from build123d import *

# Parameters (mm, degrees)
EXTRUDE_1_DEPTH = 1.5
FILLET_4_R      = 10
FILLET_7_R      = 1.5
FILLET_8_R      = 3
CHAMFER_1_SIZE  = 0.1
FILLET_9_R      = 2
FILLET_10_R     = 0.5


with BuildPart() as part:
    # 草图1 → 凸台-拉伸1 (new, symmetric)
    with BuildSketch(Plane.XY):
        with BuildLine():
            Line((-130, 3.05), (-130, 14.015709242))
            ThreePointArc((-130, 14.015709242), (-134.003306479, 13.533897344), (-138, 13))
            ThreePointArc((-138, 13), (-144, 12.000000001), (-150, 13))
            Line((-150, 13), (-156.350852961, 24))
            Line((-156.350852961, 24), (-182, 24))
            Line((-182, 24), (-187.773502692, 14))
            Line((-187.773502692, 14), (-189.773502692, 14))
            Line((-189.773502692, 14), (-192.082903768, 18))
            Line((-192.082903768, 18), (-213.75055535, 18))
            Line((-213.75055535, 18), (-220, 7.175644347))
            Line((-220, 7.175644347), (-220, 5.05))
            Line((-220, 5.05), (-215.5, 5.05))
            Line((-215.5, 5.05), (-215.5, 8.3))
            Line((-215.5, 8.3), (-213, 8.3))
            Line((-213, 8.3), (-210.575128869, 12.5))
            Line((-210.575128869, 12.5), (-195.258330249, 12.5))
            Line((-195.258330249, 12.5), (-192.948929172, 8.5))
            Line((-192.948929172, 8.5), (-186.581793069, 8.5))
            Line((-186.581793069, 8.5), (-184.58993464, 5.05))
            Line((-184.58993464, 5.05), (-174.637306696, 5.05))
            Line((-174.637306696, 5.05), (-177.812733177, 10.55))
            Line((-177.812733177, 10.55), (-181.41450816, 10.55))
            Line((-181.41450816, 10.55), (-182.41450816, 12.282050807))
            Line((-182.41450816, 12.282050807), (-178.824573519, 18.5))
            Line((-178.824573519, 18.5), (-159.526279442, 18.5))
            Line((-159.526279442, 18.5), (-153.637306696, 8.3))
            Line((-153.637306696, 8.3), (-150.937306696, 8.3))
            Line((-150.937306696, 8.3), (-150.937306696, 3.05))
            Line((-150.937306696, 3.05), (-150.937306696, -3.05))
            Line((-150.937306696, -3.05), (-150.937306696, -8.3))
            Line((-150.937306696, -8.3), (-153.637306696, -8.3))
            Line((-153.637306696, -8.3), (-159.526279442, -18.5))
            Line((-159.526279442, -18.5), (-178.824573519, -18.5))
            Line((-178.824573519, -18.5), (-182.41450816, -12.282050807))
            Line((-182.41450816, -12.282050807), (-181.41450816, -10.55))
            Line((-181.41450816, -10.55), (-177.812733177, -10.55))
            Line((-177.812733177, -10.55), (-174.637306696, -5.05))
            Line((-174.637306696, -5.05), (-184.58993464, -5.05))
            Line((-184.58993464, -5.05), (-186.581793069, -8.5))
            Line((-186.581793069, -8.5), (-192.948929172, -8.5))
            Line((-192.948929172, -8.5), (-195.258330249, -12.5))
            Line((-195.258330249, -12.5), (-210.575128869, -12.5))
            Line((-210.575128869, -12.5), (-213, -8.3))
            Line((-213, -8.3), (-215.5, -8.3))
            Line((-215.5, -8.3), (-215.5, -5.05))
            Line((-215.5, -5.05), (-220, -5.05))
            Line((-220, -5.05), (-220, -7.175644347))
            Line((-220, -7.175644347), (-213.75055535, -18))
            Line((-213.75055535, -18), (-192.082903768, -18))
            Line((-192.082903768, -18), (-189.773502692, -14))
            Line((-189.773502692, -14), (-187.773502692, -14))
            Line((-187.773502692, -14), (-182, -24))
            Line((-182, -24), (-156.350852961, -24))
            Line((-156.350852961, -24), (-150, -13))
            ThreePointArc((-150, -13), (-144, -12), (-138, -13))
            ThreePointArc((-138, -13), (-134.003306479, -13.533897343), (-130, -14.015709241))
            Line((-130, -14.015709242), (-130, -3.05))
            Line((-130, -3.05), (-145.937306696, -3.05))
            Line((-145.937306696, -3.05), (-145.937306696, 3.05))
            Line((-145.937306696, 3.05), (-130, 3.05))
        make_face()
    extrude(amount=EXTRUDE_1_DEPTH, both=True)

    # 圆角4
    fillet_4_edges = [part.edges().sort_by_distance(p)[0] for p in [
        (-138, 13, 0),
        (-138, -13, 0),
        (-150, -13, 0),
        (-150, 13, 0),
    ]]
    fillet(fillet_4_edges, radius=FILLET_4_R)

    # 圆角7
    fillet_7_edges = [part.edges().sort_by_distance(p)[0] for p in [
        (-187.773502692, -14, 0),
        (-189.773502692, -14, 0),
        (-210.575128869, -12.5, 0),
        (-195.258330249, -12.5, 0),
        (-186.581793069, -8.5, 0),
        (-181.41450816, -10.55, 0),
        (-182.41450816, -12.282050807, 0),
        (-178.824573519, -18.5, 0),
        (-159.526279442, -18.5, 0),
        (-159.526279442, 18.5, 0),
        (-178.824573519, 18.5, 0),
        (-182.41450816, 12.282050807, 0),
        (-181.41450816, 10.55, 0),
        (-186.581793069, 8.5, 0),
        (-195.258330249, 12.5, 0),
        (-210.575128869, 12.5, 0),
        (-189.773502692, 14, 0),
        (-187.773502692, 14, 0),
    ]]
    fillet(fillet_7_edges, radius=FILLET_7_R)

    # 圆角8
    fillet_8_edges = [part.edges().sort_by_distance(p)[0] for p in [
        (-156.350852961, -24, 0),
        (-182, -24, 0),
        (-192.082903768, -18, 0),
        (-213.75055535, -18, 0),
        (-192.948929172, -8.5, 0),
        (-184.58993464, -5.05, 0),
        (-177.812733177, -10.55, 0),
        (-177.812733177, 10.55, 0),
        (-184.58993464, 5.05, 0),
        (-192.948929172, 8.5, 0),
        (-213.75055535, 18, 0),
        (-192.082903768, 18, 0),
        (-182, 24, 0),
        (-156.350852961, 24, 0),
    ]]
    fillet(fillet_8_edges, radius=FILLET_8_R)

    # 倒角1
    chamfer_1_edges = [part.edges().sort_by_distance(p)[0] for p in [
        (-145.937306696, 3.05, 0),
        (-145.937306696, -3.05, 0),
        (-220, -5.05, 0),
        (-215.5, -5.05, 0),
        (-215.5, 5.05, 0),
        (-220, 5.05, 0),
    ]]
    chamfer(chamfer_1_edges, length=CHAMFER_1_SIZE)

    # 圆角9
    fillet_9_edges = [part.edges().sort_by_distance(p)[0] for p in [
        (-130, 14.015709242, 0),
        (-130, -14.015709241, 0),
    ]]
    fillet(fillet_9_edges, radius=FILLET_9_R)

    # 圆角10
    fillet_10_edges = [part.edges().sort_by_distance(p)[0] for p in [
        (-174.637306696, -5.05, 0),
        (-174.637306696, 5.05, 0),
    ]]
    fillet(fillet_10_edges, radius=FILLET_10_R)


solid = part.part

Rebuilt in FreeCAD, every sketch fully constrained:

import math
import FreeCAD as App
import Part
import Sketcher
from FreeCAD import Vector
Q = App.Units.Quantity


def edges_at(feature, points):
    """Names of the edges that pass closest to the given points."""
    edges = feature.Shape.Edges
    near = lambda p: min(range(len(edges)), key=lambda i: edges[i].distToShape(Part.Vertex(*p))[0])
    return sorted({f"Edge{near(p) + 1}" for p in points})

doc = App.newDocument("Part")
body = doc.addObject("PartDesign::Body", "Body")

sketch1 = body.newObject("Sketcher::SketchObject", "Sketch")
sketch1.AttachmentSupport = (doc.getObject("XY_Plane"), [""])
sketch1.MapMode = "FlatFace"
sketch1.addGeometry(Part.LineSegment(Vector(-130, 3.05, 0), Vector(-130, 14.015709, 0)), False)
sketch1.addGeometry(Part.ArcOfCircle(Part.Circle(Vector(-95, -293.666664, 0), Vector(0, 0, 1), 309.666664), math.radians(96.489709), math.radians(97.981826)), False)
sketch1.addGeometry(Part.ArcOfCircle(Part.Circle(Vector(-144, 30.5, 0), Vector(0, 0, 1), 18.5), math.radians(-108.924644), math.radians(-71.075356)), False)
sketch1.addGeometry(Part.LineSegment(Vector(-150, 13, 0), Vector(-156.350853, 24, 0)), False)
sketch1.addGeometry(Part.LineSegment(Vector(-156.350853, 24, 0), Vector(-182, 24, 0)), False)
sketch1.addGeometry(Part.LineSegment(Vector(-182, 24, 0), Vector(-187.773503, 14, 0)), False)
sketch1.addGeometry(Part.LineSegment(Vector(-187.773503, 14, 0), Vector(-189.773503, 14, 0)), False)
sketch1.addGeometry(Part.LineSegment(Vector(-189.773503, 14, 0), Vector(-192.082904, 18, 0)), False)
sketch1.addGeometry(Part.LineSegment(Vector(-192.082904, 18, 0), Vector(-213.750555, 18, 0)), False)
sketch1.addGeometry(Part.LineSegment(Vector(-213.750555, 18, 0), Vector(-220, 7.175644, 0)), False)
sketch1.addGeometry(Part.LineSegment(Vector(-220, 7.175644, 0), Vector(-220, 5.05, 0)), False)
sketch1.addGeometry(Part.LineSegment(Vector(-220, 5.05, 0), Vector(-215.5, 5.05, 0)), False)
sketch1.addGeometry(Part.LineSegment(Vector(-215.5, 5.05, 0), Vector(-215.5, 8.3, 0)), False)
sketch1.addGeometry(Part.LineSegment(Vector(-215.5, 8.3, 0), Vector(-213, 8.3, 0)), False)
sketch1.addGeometry(Part.LineSegment(Vector(-213, 8.3, 0), Vector(-210.575129, 12.5, 0)), False)
sketch1.addGeometry(Part.LineSegment(Vector(-210.575129, 12.5, 0), Vector(-195.25833, 12.5, 0)), False)
sketch1.addGeometry(Part.LineSegment(Vector(-195.25833, 12.5, 0), Vector(-192.948929, 8.5, 0)), False)
sketch1.addGeometry(Part.LineSegment(Vector(-192.948929, 8.5, 0), Vector(-186.581793, 8.5, 0)), False)
sketch1.addGeometry(Part.LineSegment(Vector(-186.581793, 8.5, 0), Vector(-184.589935, 5.05, 0)), False)
sketch1.addGeometry(Part.LineSegment(Vector(-184.589935, 5.05, 0), Vector(-174.637307, 5.05, 0)), False)
sketch1.addGeometry(Part.LineSegment(Vector(-174.637307, 5.05, 0), Vector(-177.812733, 10.55, 0)), False)
sketch1.addGeometry(Part.LineSegment(Vector(-177.812733, 10.55, 0), Vector(-181.414508, 10.55, 0)), False)
sketch1.addGeometry(Part.LineSegment(Vector(-181.414508, 10.55, 0), Vector(-182.414508, 12.282051, 0)), False)
sketch1.addGeometry(Part.LineSegment(Vector(-182.414508, 12.282051, 0), Vector(-178.824574, 18.5, 0)), False)
sketch1.addGeometry(Part.LineSegment(Vector(-178.824574, 18.5, 0), Vector(-159.526279, 18.5, 0)), False)
sketch1.addGeometry(Part.LineSegment(Vector(-159.526279, 18.5, 0), Vector(-153.637307, 8.3, 0)), False)
sketch1.addGeometry(Part.LineSegment(Vector(-153.637307, 8.3, 0), Vector(-150.937307, 8.3, 0)), False)
sketch1.addGeometry(Part.LineSegment(Vector(-150.937307, 8.3, 0), Vector(-150.937307, -8.3, 0)), False)
sketch1.addGeometry(Part.LineSegment(Vector(-150.937307, -8.3, 0), Vector(-153.637307, -8.3, 0)), False)
sketch1.addGeometry(Part.LineSegment(Vector(-153.637307, -8.3, 0), Vector(-159.526279, -18.5, 0)), False)
sketch1.addGeometry(Part.LineSegment(Vector(-159.526279, -18.5, 0), Vector(-178.824574, -18.5, 0)), False)
sketch1.addGeometry(Part.LineSegment(Vector(-178.824574, -18.5, 0), Vector(-182.414508, -12.282051, 0)), False)
sketch1.addGeometry(Part.LineSegment(Vector(-182.414508, -12.282051, 0), Vector(-181.414508, -10.55, 0)), False)
sketch1.addGeometry(Part.LineSegment(Vector(-181.414508, -10.55, 0), Vector(-177.812733, -10.55, 0)), False)
sketch1.addGeometry(Part.LineSegment(Vector(-177.812733, -10.55, 0), Vector(-174.637307, -5.05, 0)), False)
sketch1.addGeometry(Part.LineSegment(Vector(-174.637307, -5.05, 0), Vector(-184.589935, -5.05, 0)), False)
sketch1.addGeometry(Part.LineSegment(Vector(-184.589935, -5.05, 0), Vector(-186.581793, -8.5, 0)), False)
sketch1.addGeometry(Part.LineSegment(Vector(-186.581793, -8.5, 0), Vector(-192.948929, -8.5, 0)), False)
sketch1.addGeometry(Part.LineSegment(Vector(-192.948929, -8.5, 0), Vector(-195.25833, -12.5, 0)), False)
sketch1.addGeometry(Part.LineSegment(Vector(-195.25833, -12.5, 0), Vector(-210.575129, -12.5, 0)), False)
sketch1.addGeometry(Part.LineSegment(Vector(-210.575129, -12.5, 0), Vector(-213, -8.3, 0)), False)
sketch1.addGeometry(Part.LineSegment(Vector(-213, -8.3, 0), Vector(-215.5, -8.3, 0)), False)
sketch1.addGeometry(Part.LineSegment(Vector(-215.5, -8.3, 0), Vector(-215.5, -5.05, 0)), False)
sketch1.addGeometry(Part.LineSegment(Vector(-215.5, -5.05, 0), Vector(-220, -5.05, 0)), False)
sketch1.addGeometry(Part.LineSegment(Vector(-220, -5.05, 0), Vector(-220, -7.175644, 0)), False)
sketch1.addGeometry(Part.LineSegment(Vector(-220, -7.175644, 0), Vector(-213.750555, -18, 0)), False)
sketch1.addGeometry(Part.LineSegment(Vector(-213.750555, -18, 0), Vector(-192.082904, -18, 0)), False)
sketch1.addGeometry(Part.LineSegment(Vector(-192.082904, -18, 0), Vector(-189.773503, -14, 0)), False)
sketch1.addGeometry(Part.LineSegment(Vector(-189.773503, -14, 0), Vector(-187.773503, -14, 0)), False)
sketch1.addGeometry(Part.LineSegment(Vector(-187.773503, -14, 0), Vector(-182, -24, 0)), False)
sketch1.addGeometry(Part.LineSegment(Vector(-182, -24, 0), Vector(-156.350853, -24, 0)), False)
sketch1.addGeometry(Part.LineSegment(Vector(-156.350853, -24, 0), Vector(-150, -13, 0)), False)
sketch1.addGeometry(Part.ArcOfCircle(Part.Circle(Vector(-144, -30.5, 0), Vector(0, 0, 1), 18.5), math.radians(71.075356), math.radians(108.924644)), False)
sketch1.addGeometry(Part.ArcOfCircle(Part.Circle(Vector(-95, 293.66667, 0), Vector(0, 0, 1), 309.66667), math.radians(-97.981826), math.radians(-96.489709)), False)
sketch1.addGeometry(Part.LineSegment(Vector(-130, -14.015709, 0), Vector(-130, -3.05, 0)), False)
sketch1.addGeometry(Part.LineSegment(Vector(-130, -3.05, 0), Vector(-145.937307, -3.05, 0)), False)
sketch1.addGeometry(Part.LineSegment(Vector(-145.937307, -3.05, 0), Vector(-145.937307, 3.05, 0)), False)
sketch1.addGeometry(Part.LineSegment(Vector(-145.937307, 3.05, 0), Vector(-130, 3.05, 0)), False)
sketch1.addConstraint(Sketcher.Constraint("Coincident", 0, 2, 1, 1))
sketch1.addConstraint(Sketcher.Constraint("Coincident", 1, 2, 2, 2))
sketch1.addConstraint(Sketcher.Constraint("Coincident", 2, 1, 3, 1))
sketch1.addConstraint(Sketcher.Constraint("Coincident", 3, 2, 4, 1))
sketch1.addConstraint(Sketcher.Constraint("Coincident", 4, 2, 5, 1))
sketch1.addConstraint(Sketcher.Constraint("Coincident", 5, 2, 6, 1))
sketch1.addConstraint(Sketcher.Constraint("Coincident", 6, 2, 7, 1))
sketch1.addConstraint(Sketcher.Constraint("Coincident", 7, 2, 8, 1))
sketch1.addConstraint(Sketcher.Constraint("Coincident", 8, 2, 9, 1))
sketch1.addConstraint(Sketcher.Constraint("Coincident", 9, 2, 10, 1))
sketch1.addConstraint(Sketcher.Constraint("Coincident", 10, 2, 11, 1))
sketch1.addConstraint(Sketcher.Constraint("Coincident", 11, 2, 12, 1))
sketch1.addConstraint(Sketcher.Constraint("Coincident", 12, 2, 13, 1))
sketch1.addConstraint(Sketcher.Constraint("Coincident", 13, 2, 14, 1))
sketch1.addConstraint(Sketcher.Constraint("Coincident", 14, 2, 15, 1))
sketch1.addConstraint(Sketcher.Constraint("Coincident", 15, 2, 16, 1))
sketch1.addConstraint(Sketcher.Constraint("Coincident", 16, 2, 17, 1))
sketch1.addConstraint(Sketcher.Constraint("Coincident", 17, 2, 18, 1))
sketch1.addConstraint(Sketcher.Constraint("Coincident", 18, 2, 19, 1))
sketch1.addConstraint(Sketcher.Constraint("Coincident", 19, 2, 20, 1))
sketch1.addConstraint(Sketcher.Constraint("Coincident", 20, 2, 21, 1))
sketch1.addConstraint(Sketcher.Constraint("Coincident", 21, 2, 22, 1))
sketch1.addConstraint(Sketcher.Constraint("Coincident", 22, 2, 23, 1))
sketch1.addConstraint(Sketcher.Constraint("Coincident", 23, 2, 24, 1))
sketch1.addConstraint(Sketcher.Constraint("Coincident", 24, 2, 25, 1))
sketch1.addConstraint(Sketcher.Constraint("Coincident", 25, 2, 26, 1))
sketch1.addConstraint(Sketcher.Constraint("Coincident", 26, 2, 27, 1))
sketch1.addConstraint(Sketcher.Constraint("Coincident", 27, 2, 28, 1))
sketch1.addConstraint(Sketcher.Constraint("Coincident", 28, 2, 29, 1))
sketch1.addConstraint(Sketcher.Constraint("Coincident", 29, 2, 30, 1))
sketch1.addConstraint(Sketcher.Constraint("Coincident", 30, 2, 31, 1))
sketch1.addConstraint(Sketcher.Constraint("Coincident", 31, 2, 32, 1))
sketch1.addConstraint(Sketcher.Constraint("Coincident", 32, 2, 33, 1))
sketch1.addConstraint(Sketcher.Constraint("Coincident", 33, 2, 34, 1))
sketch1.addConstraint(Sketcher.Constraint("Coincident", 34, 2, 35, 1))
sketch1.addConstraint(Sketcher.Constraint("Coincident", 35, 2, 36, 1))
sketch1.addConstraint(Sketcher.Constraint("Coincident", 36, 2, 37, 1))
sketch1.addConstraint(Sketcher.Constraint("Coincident", 37, 2, 38, 1))
sketch1.addConstraint(Sketcher.Constraint("Coincident", 38, 2, 39, 1))
sketch1.addConstraint(Sketcher.Constraint("Coincident", 39, 2, 40, 1))
sketch1.addConstraint(Sketcher.Constraint("Coincident", 40, 2, 41, 1))
sketch1.addConstraint(Sketcher.Constraint("Coincident", 41, 2, 42, 1))
sketch1.addConstraint(Sketcher.Constraint("Coincident", 42, 2, 43, 1))
sketch1.addConstraint(Sketcher.Constraint("Coincident", 43, 2, 44, 1))
sketch1.addConstraint(Sketcher.Constraint("Coincident", 44, 2, 45, 1))
sketch1.addConstraint(Sketcher.Constraint("Coincident", 45, 2, 46, 1))
sketch1.addConstraint(Sketcher.Constraint("Coincident", 46, 2, 47, 1))
sketch1.addConstraint(Sketcher.Constraint("Coincident", 47, 2, 48, 1))
sketch1.addConstraint(Sketcher.Constraint("Coincident", 48, 2, 49, 1))
sketch1.addConstraint(Sketcher.Constraint("Coincident", 49, 2, 50, 1))
sketch1.addConstraint(Sketcher.Constraint("Coincident", 50, 2, 51, 1))
sketch1.addConstraint(Sketcher.Constraint("Coincident", 51, 2, 52, 2))
sketch1.addConstraint(Sketcher.Constraint("Coincident", 52, 1, 53, 1))
sketch1.addConstraint(Sketcher.Constraint("Coincident", 53, 2, 54, 1))
sketch1.addConstraint(Sketcher.Constraint("Coincident", 54, 2, 55, 1))
sketch1.addConstraint(Sketcher.Constraint("Coincident", 55, 2, 56, 1))
sketch1.addConstraint(Sketcher.Constraint("Coincident", 56, 2, 57, 1))
sketch1.addConstraint(Sketcher.Constraint("Coincident", 57, 2, 0, 1))
sketch1.addConstraint(Sketcher.Constraint("Vertical", 0))
sketch1.addConstraint(Sketcher.Constraint("Horizontal", 4))
sketch1.addConstraint(Sketcher.Constraint("Horizontal", 6))
sketch1.addConstraint(Sketcher.Constraint("Horizontal", 8))
sketch1.addConstraint(Sketcher.Constraint("Vertical", 10))
sketch1.addConstraint(Sketcher.Constraint("Horizontal", 11))
sketch1.addConstraint(Sketcher.Constraint("Vertical", 12))
sketch1.addConstraint(Sketcher.Constraint("Horizontal", 13))
sketch1.addConstraint(Sketcher.Constraint("Horizontal", 15))
sketch1.addConstraint(Sketcher.Constraint("Horizontal", 17))
sketch1.addConstraint(Sketcher.Constraint("Horizontal", 19))
sketch1.addConstraint(Sketcher.Constraint("Horizontal", 21))
sketch1.addConstraint(Sketcher.Constraint("Horizontal", 24))
sketch1.addConstraint(Sketcher.Constraint("Horizontal", 26))
sketch1.addConstraint(Sketcher.Constraint("Vertical", 27))
sketch1.addConstraint(Sketcher.Constraint("Horizontal", 28))
sketch1.addConstraint(Sketcher.Constraint("Horizontal", 30))
sketch1.addConstraint(Sketcher.Constraint("Horizontal", 33))
sketch1.addConstraint(Sketcher.Constraint("Horizontal", 35))
sketch1.addConstraint(Sketcher.Constraint("Horizontal", 37))
sketch1.addConstraint(Sketcher.Constraint("Horizontal", 39))
sketch1.addConstraint(Sketcher.Constraint("Horizontal", 41))
sketch1.addConstraint(Sketcher.Constraint("Vertical", 42))
sketch1.addConstraint(Sketcher.Constraint("Horizontal", 43))
sketch1.addConstraint(Sketcher.Constraint("Vertical", 44))
sketch1.addConstraint(Sketcher.Constraint("Horizontal", 46))
sketch1.addConstraint(Sketcher.Constraint("Horizontal", 48))
sketch1.addConstraint(Sketcher.Constraint("Horizontal", 50))
sketch1.addConstraint(Sketcher.Constraint("Vertical", 54))
sketch1.addConstraint(Sketcher.Constraint("Horizontal", 55))
sketch1.addConstraint(Sketcher.Constraint("Vertical", 56))
sketch1.addConstraint(Sketcher.Constraint("Horizontal", 57))
sketch1.addConstraint(Sketcher.Constraint("Equal", 2, 52))
sketch1.addConstraint(Sketcher.Constraint("Symmetric", 2, 3, 52, 3, -1))
sketch1.addConstraint(Sketcher.Constraint("Symmetric", 1, 3, 53, 3, -1))
sketch1.addConstraint(Sketcher.Constraint("Symmetric", 25, 2, 28, 2, -1))
sketch1.addConstraint(Sketcher.Constraint("Symmetric", 24, 2, 29, 2, -1))
sketch1.addConstraint(Sketcher.Constraint("Symmetric", 22, 2, 31, 2, -1))
sketch1.addConstraint(Sketcher.Constraint("Symmetric", 21, 2, 32, 2, -1))
sketch1.addConstraint(Sketcher.Constraint("Symmetric", 19, 2, 34, 2, -1))
sketch1.addConstraint(Sketcher.Constraint("Symmetric", 17, 2, 36, 2, -1))
sketch1.addConstraint(Sketcher.Constraint("Symmetric", 15, 2, 38, 2, -1))
sketch1.addConstraint(Sketcher.Constraint("Symmetric", 13, 2, 40, 2, -1))
sketch1.addConstraint(Sketcher.Constraint("Symmetric", 11, 2, 42, 2, -1))
sketch1.addConstraint(Sketcher.Constraint("Symmetric", 9, 2, 44, 2, -1))
sketch1.addConstraint(Sketcher.Constraint("Symmetric", 8, 2, 45, 2, -1))
sketch1.addConstraint(Sketcher.Constraint("Symmetric", 6, 2, 47, 2, -1))
sketch1.addConstraint(Sketcher.Constraint("Symmetric", 4, 2, 49, 2, -1))
sketch1.addConstraint(Sketcher.Constraint("Symmetric", 0, 2, 53, 2, -1))
sketch1.addConstraint(Sketcher.Constraint("Parallel", 3, 7))
sketch1.addConstraint(Sketcher.Constraint("Parallel", 5, 9))
sketch1.addConstraint(Sketcher.Constraint("Parallel", 9, 14))
sketch1.addConstraint(Sketcher.Constraint("Parallel", 7, 16))
sketch1.addConstraint(Sketcher.Constraint("Parallel", 16, 18))
sketch1.addConstraint(Sketcher.Constraint("Parallel", 18, 20))
sketch1.addConstraint(Sketcher.Constraint("Parallel", 20, 22))
sketch1.addConstraint(Sketcher.Constraint("Parallel", 14, 23))
sketch1.addConstraint(Sketcher.Constraint("Parallel", 22, 25))
sketch1.addConstraint(Sketcher.Constraint("Parallel", 23, 29))
sketch1.addConstraint(Sketcher.Constraint("Parallel", 25, 31))
sketch1.addConstraint(Sketcher.Constraint("Parallel", 32, 34))
sketch1.addConstraint(Sketcher.Constraint("Parallel", 34, 36))
sketch1.addConstraint(Sketcher.Constraint("Parallel", 36, 38))
sketch1.addConstraint(Sketcher.Constraint("Parallel", 31, 40))
sketch1.addConstraint(Sketcher.Constraint("Parallel", 38, 47))
sketch1.addConstraint(Sketcher.Constraint("Parallel", 45, 49))
sketch1.addConstraint(Sketcher.Constraint("Parallel", 47, 51))
sketch1.addConstraint(Sketcher.Constraint("Horizontal", 1, 2, 2, 1))
sketch1.addConstraint(Sketcher.Constraint("Horizontal", 11, 2, 18, 2))
sketch1.addConstraint(Sketcher.Constraint("Horizontal", 13, 2, 25, 2))
sketch1.addConstraint(Sketcher.Constraint("Horizontal", 51, 2, 52, 1))
sketch1.addConstraint(Sketcher.Constraint("Equal", 0, 54))
sketch1.addConstraint(Sketcher.Constraint("Equal", 7, 16))
sketch1.addConstraint(Sketcher.Constraint("Radius", 2, Q("18.5 mm")))
sketch1.addConstraint(Sketcher.Constraint("DistanceX", 6, 2, 6, 1, Q("2 mm")))
sketch1.addConstraint(Sketcher.Constraint("Angle", 3, Q("120 deg")))
sketch1.addConstraint(Sketcher.Constraint("Distance", 22, Q("2 mm")))
sketch1.addConstraint(Sketcher.Constraint("DistanceX", 11, 1, 11, 2, Q("4.5 mm")))
sketch1.addConstraint(Sketcher.Constraint("DistanceX", 13, 1, 13, 2, Q("2.5 mm")))
sketch1.addConstraint(Sketcher.Constraint("DistanceX", 26, 1, 26, 2, Q("2.7 mm")))
sketch1.addConstraint(Sketcher.Constraint("DistanceY", 27, 2, 27, 1, Q("16.6 mm")))
sketch1.addConstraint(Sketcher.Constraint("DistanceY", 56, 1, 56, 2, Q("6.1 mm")))
sketch1.addConstraint(Sketcher.Constraint("DistanceX", 1, 3, -1, 1, Q("95 mm")))
sketch1.addConstraint(Sketcher.Constraint("DistanceX", 2, 3, -1, 1, Q("144 mm")))
sketch1.addConstraint(Sketcher.Constraint("DistanceX", 0, 2, -1, 1, Q("130 mm")))
sketch1.addConstraint(Sketcher.Constraint("DistanceY", -1, 1, 1, 2, Q("13 mm")))
sketch1.addConstraint(Sketcher.Constraint("DistanceX", 2, 1, -1, 1, Q("150 mm")))
sketch1.addConstraint(Sketcher.Constraint("DistanceY", -1, 1, 3, 2, Q("24 mm")))
sketch1.addConstraint(Sketcher.Constraint("DistanceX", 4, 2, -1, 1, Q("182 mm")))
sketch1.addConstraint(Sketcher.Constraint("DistanceY", -1, 1, 5, 2, Q("14 mm")))
sketch1.addConstraint(Sketcher.Constraint("DistanceY", -1, 1, 7, 2, Q("18 mm")))
sketch1.addConstraint(Sketcher.Constraint("DistanceX", 9, 2, -1, 1, Q("220 mm")))
sketch1.addConstraint(Sketcher.Constraint("DistanceY", 12, 1, 12, 2, Q("3.25 mm")))
sketch1.addConstraint(Sketcher.Constraint("DistanceY", -1, 1, 14, 2, Q("12.5 mm")))
sketch1.addConstraint(Sketcher.Constraint("DistanceY", -1, 1, 23, 2, Q("18.5 mm")))
sketch1.addConstraint(Sketcher.Constraint("DistanceY", -1, 1, 20, 2, Q("10.55 mm")))
sketch1.addConstraint(Sketcher.Constraint("Radius", 53, Q("309.66667 mm")))
sketch1.addConstraint(Sketcher.Constraint("DistanceX", 15, 1, 15, 2, Q("15.316799 mm")))
sketch1.addConstraint(Sketcher.Constraint("DistanceX", 8, 2, 8, 1, Q("21.667652 mm")))
sketch1.addConstraint(Sketcher.Constraint("DistanceX", 17, 1, 17, 2, Q("6.367136 mm")))
sketch1.addConstraint(Sketcher.Constraint("DistanceX", 19, 1, 19, 2, Q("9.952628 mm")))
sketch1.addConstraint(Sketcher.Constraint("DistanceX", 21, 2, 21, 1, Q("3.601775 mm")))
sketch1.addConstraint(Sketcher.Constraint("DistanceX", 24, 1, 24, 2, Q("19.298294 mm")))
sketch1.addConstraint(Sketcher.Constraint("DistanceX", 55, 2, 55, 1, Q("15.937307 mm")))
pad1 = body.newObject("PartDesign::Pad", "Pad")
pad1.Profile = sketch1
pad1.Length = 3
pad1.Midplane = True
doc.recompute()

fillet = body.newObject("PartDesign::Fillet", "Fillet")
fillet.Base = (pad1, edges_at(pad1, [
    (-138, 13, 0),
    (-138, -13, 0),
    (-150, -13, 0),
    (-150, 13, 0),
]))
fillet.Radius = 10
doc.recompute()

fillet2 = body.newObject("PartDesign::Fillet", "Fillet001")
fillet2.Base = (fillet, edges_at(fillet, [
    (-187.774, -14, 0),
    (-189.774, -14, 0),
    (-210.575, -12.5, 0),
    (-195.258, -12.5, 0),
    (-186.582, -8.5, 0),
    (-181.415, -10.55, 0),
    (-182.415, -12.282, 0),
    (-178.825, -18.5, 0),
    (-159.526, -18.5, 0),
    (-159.526, 18.5, 0),
    (-178.825, 18.5, 0),
    (-182.415, 12.282, 0),
    (-181.415, 10.55, 0),
    (-186.582, 8.5, 0),
    (-195.258, 12.5, 0),
    (-210.575, 12.5, 0),
    (-189.774, 14, 0),
    (-187.774, 14, 0),
]))
fillet2.Radius = 1.5
doc.recompute()

fillet3 = body.newObject("PartDesign::Fillet", "Fillet002")
fillet3.Base = (fillet2, edges_at(fillet2, [
    (-156.351, -24, 0),
    (-182, -24, 0),
    (-192.083, -18, 0),
    (-213.751, -18, 0),
    (-192.949, -8.5, 0),
    (-184.59, -5.05, 0),
    (-177.813, -10.55, 0),
    (-177.813, 10.55, 0),
    (-184.59, 5.05, 0),
    (-192.949, 8.5, 0),
    (-213.751, 18, 0),
    (-192.083, 18, 0),
    (-182, 24, 0),
    (-156.351, 24, 0),
]))
fillet3.Radius = 3
doc.recompute()

chamfer = body.newObject("PartDesign::Chamfer", "Chamfer")
chamfer.Base = (fillet3, edges_at(fillet3, [
    (-145.937, 3.05, 0),
    (-145.937, -3.05, 0),
    (-220, -5.05, 0),
    (-215.5, -5.05, 0),
    (-215.5, 5.05, 0),
    (-220, 5.05, 0),
]))
chamfer.Size = 0.1
doc.recompute()

fillet4 = body.newObject("PartDesign::Fillet", "Fillet003")
fillet4.Base = (chamfer, edges_at(chamfer, [(-130, 14.016, 0), (-130, -14.016, 0)]))
fillet4.Radius = 2
doc.recompute()

fillet5 = body.newObject("PartDesign::Fillet", "Fillet004")
fillet5.Base = (fillet4, edges_at(fillet4, [(-174.637, -5.05, 0), (-174.637, 5.05, 0)]))
fillet5.Radius = 0.5

doc.recompute()
